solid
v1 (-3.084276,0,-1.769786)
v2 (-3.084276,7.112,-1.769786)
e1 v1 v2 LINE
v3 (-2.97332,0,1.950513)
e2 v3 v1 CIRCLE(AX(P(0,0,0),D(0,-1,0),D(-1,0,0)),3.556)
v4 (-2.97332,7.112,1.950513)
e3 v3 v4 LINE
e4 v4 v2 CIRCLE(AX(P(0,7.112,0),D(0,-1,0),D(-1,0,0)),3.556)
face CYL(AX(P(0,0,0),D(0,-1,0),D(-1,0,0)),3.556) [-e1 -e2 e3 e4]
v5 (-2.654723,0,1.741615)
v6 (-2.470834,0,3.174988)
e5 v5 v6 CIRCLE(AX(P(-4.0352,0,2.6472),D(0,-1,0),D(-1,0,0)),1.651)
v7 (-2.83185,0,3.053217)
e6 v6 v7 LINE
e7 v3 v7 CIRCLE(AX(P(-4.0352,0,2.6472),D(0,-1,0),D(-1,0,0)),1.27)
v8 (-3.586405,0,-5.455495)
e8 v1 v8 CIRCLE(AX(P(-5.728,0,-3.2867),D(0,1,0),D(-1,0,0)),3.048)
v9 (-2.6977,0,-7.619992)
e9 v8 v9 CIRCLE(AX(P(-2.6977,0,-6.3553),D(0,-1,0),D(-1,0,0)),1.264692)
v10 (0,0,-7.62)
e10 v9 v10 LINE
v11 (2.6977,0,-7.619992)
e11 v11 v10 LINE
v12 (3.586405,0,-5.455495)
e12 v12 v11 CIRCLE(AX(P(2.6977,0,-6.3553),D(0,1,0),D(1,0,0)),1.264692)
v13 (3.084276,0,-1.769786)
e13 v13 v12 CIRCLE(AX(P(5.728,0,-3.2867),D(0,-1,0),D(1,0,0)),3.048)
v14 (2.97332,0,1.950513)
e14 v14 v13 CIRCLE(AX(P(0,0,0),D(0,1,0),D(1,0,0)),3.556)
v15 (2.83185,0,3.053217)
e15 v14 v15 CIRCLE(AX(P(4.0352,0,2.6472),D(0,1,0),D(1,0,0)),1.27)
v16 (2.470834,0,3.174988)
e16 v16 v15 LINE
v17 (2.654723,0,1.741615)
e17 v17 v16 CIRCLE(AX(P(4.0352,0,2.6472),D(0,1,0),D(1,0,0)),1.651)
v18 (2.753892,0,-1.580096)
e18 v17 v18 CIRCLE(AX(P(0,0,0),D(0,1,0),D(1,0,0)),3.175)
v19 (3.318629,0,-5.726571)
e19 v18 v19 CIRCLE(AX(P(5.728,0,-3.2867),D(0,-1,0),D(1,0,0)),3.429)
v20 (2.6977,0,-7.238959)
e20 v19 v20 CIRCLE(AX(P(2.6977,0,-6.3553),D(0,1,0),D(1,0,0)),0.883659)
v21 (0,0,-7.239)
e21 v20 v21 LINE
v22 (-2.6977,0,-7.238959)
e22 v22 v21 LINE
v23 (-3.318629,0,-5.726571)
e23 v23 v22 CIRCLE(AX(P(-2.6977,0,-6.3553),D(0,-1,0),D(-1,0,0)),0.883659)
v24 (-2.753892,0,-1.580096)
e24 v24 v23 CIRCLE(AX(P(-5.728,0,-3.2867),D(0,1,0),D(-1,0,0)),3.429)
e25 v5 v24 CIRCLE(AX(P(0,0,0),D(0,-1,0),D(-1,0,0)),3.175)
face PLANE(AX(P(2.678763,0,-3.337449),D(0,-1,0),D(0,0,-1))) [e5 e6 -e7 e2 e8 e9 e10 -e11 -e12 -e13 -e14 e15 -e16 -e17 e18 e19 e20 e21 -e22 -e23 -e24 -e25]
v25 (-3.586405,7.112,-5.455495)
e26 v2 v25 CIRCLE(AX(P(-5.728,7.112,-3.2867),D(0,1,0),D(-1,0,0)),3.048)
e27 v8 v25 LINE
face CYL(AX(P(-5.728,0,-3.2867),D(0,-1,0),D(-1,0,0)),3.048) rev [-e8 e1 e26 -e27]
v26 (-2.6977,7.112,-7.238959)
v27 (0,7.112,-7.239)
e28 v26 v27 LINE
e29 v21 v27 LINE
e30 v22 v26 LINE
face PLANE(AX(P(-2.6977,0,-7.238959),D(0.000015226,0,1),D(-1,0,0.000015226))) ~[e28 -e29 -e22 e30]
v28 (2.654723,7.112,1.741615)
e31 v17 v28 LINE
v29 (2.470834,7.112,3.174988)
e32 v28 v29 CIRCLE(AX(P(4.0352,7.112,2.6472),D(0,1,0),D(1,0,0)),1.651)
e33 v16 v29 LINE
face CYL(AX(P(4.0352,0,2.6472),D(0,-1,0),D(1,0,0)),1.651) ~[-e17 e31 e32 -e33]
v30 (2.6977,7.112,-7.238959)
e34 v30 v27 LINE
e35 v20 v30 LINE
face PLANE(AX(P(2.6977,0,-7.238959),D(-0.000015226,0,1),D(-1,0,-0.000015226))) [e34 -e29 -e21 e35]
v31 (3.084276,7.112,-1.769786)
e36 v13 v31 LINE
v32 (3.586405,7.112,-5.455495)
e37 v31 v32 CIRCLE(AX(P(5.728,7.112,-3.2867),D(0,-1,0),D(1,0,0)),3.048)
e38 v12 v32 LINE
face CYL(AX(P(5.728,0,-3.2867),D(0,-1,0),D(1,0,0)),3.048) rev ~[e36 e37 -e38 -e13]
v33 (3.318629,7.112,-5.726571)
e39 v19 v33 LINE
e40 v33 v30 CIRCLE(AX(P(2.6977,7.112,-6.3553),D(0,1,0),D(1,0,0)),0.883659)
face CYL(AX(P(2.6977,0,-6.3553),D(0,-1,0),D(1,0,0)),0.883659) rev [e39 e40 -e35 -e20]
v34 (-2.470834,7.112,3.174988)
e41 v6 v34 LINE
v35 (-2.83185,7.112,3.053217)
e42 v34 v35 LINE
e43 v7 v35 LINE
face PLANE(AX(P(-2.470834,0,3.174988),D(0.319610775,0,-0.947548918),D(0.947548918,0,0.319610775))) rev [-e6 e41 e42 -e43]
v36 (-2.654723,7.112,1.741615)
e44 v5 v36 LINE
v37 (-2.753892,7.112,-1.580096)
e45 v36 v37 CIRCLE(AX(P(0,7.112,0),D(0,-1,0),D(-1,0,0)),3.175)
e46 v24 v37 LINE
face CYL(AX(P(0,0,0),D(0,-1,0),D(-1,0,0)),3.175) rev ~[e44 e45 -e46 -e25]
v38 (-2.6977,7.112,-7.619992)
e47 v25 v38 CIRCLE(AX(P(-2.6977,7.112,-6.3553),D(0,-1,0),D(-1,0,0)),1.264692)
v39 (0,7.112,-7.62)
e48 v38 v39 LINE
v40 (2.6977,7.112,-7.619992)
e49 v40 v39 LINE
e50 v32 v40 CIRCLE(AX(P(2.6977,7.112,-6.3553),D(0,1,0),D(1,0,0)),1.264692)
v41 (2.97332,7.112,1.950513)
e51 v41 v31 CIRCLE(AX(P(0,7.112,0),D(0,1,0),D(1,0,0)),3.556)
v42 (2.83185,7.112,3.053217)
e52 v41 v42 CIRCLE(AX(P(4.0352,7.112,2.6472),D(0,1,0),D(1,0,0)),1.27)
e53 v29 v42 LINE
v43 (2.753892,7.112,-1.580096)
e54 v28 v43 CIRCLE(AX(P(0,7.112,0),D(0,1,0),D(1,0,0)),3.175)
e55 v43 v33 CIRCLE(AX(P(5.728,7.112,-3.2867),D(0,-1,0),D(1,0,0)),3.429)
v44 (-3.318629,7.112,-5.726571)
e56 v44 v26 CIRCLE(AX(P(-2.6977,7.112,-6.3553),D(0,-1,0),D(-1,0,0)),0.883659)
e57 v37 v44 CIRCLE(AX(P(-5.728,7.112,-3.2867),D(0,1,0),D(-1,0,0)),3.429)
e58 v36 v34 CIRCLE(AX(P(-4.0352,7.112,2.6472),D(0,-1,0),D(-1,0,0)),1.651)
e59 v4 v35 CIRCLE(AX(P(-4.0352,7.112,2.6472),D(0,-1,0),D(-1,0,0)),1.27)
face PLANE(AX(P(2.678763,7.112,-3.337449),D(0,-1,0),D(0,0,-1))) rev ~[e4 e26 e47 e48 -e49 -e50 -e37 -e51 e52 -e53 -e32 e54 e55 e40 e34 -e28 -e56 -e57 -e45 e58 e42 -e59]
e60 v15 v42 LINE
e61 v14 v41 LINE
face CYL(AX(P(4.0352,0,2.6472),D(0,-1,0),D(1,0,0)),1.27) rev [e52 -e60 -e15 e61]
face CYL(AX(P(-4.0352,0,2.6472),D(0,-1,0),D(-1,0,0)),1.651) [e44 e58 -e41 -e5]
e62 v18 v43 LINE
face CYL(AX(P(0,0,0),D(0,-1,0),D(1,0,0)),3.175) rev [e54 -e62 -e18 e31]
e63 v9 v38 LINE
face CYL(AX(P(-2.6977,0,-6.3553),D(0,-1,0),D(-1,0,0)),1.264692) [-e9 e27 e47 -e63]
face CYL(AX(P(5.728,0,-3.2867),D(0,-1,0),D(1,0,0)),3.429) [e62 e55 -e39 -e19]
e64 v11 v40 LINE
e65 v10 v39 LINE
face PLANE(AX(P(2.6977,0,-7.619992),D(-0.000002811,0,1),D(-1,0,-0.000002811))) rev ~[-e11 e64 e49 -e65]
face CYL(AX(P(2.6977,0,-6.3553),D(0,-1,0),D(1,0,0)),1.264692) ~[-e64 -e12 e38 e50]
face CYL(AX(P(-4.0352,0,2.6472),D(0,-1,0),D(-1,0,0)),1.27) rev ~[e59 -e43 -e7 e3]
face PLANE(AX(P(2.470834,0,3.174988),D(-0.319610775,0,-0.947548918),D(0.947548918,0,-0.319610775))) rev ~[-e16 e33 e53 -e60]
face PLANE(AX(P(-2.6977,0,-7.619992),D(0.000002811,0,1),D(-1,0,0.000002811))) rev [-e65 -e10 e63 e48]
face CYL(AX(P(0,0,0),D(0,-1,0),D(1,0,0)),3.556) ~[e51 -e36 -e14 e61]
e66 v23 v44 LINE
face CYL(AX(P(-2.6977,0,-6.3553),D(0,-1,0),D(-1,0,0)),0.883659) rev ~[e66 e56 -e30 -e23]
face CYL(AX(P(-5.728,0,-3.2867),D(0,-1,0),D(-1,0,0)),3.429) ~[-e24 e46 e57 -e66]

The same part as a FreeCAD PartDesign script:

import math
import FreeCAD as App
import Part
import Sketcher
from FreeCAD import Vector
Q = App.Units.Quantity

doc = App.newDocument("Part")
body = doc.addObject("PartDesign::Body", "Body")

# Sketch on XZ plane
sketch1 = doc.addObject("Sketcher::SketchObject", "Sketch")
body.addObject(sketch1)
sketch1.AttachmentSupport = (doc.XZ_Plane, [""])
sketch1.MapMode = "FlatFace"
sketch1.addGeometry(Part.ArcOfCircle(Part.Circle(Vector(5.728, -3.2867, 0), Vector(0, 0, 1), 3.428958), math.radians(150.151906), math.radians(225.360361)), False)
sketch1.addGeometry(Part.ArcOfCircle(Part.Circle(Vector(2.6977, -6.3553, 0), Vector(0, 0, 1), 0.883618), math.radians(-90), math.radians(45.357635)), False)
sketch1.addGeometry(Part.LineSegment(Vector(2.6977, -7.239, 0), Vector(0, -7.239, 0)), False)
sketch1.addGeometry(Part.LineSegment(Vector(0, -7.239, 0), Vector(0, -7.62, 0)), False)
sketch1.addGeometry(Part.LineSegment(Vector(0, -7.62, 0), Vector(2.6977, -7.62, 0)), False)
sketch1.addGeometry(Part.ArcOfCircle(Part.Circle(Vector(2.6977, -6.3553, 0), Vector(0, 0, 1), 1.264685), math.radians(-90), math.radians(45.355591)), False)
sketch1.addGeometry(Part.ArcOfCircle(Part.Circle(Vector(5.728, -3.2867, 0), Vector(0, 0, 1), 3.047972), math.radians(150.153694), math.radians(225.36155)), False)
sketch1.addGeometry(Part.ArcOfCircle(Part.Circle(Vector(0, 0, 0), Vector(0, 0, 1), 3.555976), math.radians(-29.847604), math.radians(33.26508)), False)
sketch1.addGeometry(Part.ArcOfCircle(Part.Circle(Vector(4.0352, 2.6472, 0), Vector(0, 0, 1), 1.270048), math.radians(161.355324), math.radians(213.268405)), False)
sketch1.addGeometry(Part.LineSegment(Vector(2.8319, 3.0532, 0), Vector(2.4708, 3.175, 0)), False)
sketch1.addGeometry(Part.ArcOfCircle(Part.Circle(Vector(4.0352, 2.6472, 0), Vector(0, 0, 1), 1.651027), math.radians(161.356544), math.radians(213.264643)), False)
sketch1.addGeometry(Part.ArcOfCircle(Part.Circle(Vector(0, 0, 0), Vector(0, 0, 1), 3.174996), math.radians(-29.845829), math.radians(33.266637)), False)
sketch1.addConstraint(Sketcher.Constraint("Tangent", 0, 2, 1, 2))
sketch1.addConstraint(Sketcher.Constraint("Tangent", 1, 1, 2, 1))
sketch1.addConstraint(Sketcher.Constraint("Coincident", 2, 2, 3, 1))
sketch1.addConstraint(Sketcher.Constraint("Coincident", 3, 2, 4, 1))
sketch1.addConstraint(Sketcher.Constraint("Tangent", 4, 2, 5, 1))
sketch1.addConstraint(Sketcher.Constraint("Tangent", 5, 2, 6, 2))
sketch1.addConstraint(Sketcher.Constraint("Tangent", 6, 1, 7, 1))
sketch1.addConstraint(Sketcher.Constraint("Tangent", 7, 2, 8, 2))
sketch1.addConstraint(Sketcher.Constraint("Coincident", 8, 1, 9, 1))
sketch1.addConstraint(Sketcher.Constraint("Coincident", 9, 2, 10, 1))
sketch1.addConstraint(Sketcher.Constraint("Tangent", 10, 2, 11, 2))
sketch1.addConstraint(Sketcher.Constraint("Tangent", 11, 1, 0, 1))
sketch1.addConstraint(Sketcher.Constraint("Horizontal", 2))
sketch1.addConstraint(Sketcher.Constraint("Vertical", 3))
sketch1.addConstraint(Sketcher.Constraint("Horizontal", 4))
sketch1.addConstraint(Sketcher.Constraint("Coincident", 7, 3, -1, 1))
sketch1.addConstraint(Sketcher.Constraint("Coincident", 11, 3, -1, 1))
sketch1.addConstraint(Sketcher.Constraint("Coincident", 5, 3, 1, 3))
sketch1.addConstraint(Sketcher.Constraint("Coincident", 6, 3, 0, 3))
sketch1.addConstraint(Sketcher.Constraint("Coincident", 10, 3, 8, 3))
sketch1.addConstraint(Sketcher.Constraint("PointOnObject", 2, 2, -2))
sketch1.addConstraint(Sketcher.Constraint("Radius", 6, Q("0.12 in")))
sketch1.addConstraint(Sketcher.Constraint("Radius", 7, Q("0.14 in")))
sketch1.addConstraint(Sketcher.Constraint("Radius", 8, Q("0.05 in")))
sketch1.addConstraint(Sketcher.Constraint("Radius", 0, Q("0.135 in")))
sketch1.addConstraint(Sketcher.Constraint("DistanceY", 3, 2, -1, 1, Q("0.3 in")))
sketch1.addConstraint(Sketcher.Constraint("Radius", 1, Q("0.0348 in")))
sketch1.addConstraint(Sketcher.Constraint("Angle", 9, Q("161.3606 deg")))
sketch1.addConstraint(Sketcher.Constraint("DistanceX", 2, 2, 2, 1, Q("0.1062 in")))
sketch1.addConstraint(Sketcher.Constraint("DistanceY", -1, 1, 9, 2, Q("0.125 in")))
sketch1.addConstraint(Sketcher.Constraint("DistanceY", -1, 1, 7, 2, Q("0.0768 in")))
pad1 = doc.addObject("PartDesign::Pad", "Pad")
body.addObject(pad1)
pad1.Profile = sketch1
pad1.Length = Q("0.28 in")
pad1.Reversed = True
doc.recompute()

mirrored = doc.addObject("PartDesign::Mirrored", "Mirrored")
body.addObject(mirrored)
mirrored.Originals = [pad1]
mirrored.MirrorPlane = (doc.YZ_Plane, [""])
body.Tip = mirrored

doc.recompute()
